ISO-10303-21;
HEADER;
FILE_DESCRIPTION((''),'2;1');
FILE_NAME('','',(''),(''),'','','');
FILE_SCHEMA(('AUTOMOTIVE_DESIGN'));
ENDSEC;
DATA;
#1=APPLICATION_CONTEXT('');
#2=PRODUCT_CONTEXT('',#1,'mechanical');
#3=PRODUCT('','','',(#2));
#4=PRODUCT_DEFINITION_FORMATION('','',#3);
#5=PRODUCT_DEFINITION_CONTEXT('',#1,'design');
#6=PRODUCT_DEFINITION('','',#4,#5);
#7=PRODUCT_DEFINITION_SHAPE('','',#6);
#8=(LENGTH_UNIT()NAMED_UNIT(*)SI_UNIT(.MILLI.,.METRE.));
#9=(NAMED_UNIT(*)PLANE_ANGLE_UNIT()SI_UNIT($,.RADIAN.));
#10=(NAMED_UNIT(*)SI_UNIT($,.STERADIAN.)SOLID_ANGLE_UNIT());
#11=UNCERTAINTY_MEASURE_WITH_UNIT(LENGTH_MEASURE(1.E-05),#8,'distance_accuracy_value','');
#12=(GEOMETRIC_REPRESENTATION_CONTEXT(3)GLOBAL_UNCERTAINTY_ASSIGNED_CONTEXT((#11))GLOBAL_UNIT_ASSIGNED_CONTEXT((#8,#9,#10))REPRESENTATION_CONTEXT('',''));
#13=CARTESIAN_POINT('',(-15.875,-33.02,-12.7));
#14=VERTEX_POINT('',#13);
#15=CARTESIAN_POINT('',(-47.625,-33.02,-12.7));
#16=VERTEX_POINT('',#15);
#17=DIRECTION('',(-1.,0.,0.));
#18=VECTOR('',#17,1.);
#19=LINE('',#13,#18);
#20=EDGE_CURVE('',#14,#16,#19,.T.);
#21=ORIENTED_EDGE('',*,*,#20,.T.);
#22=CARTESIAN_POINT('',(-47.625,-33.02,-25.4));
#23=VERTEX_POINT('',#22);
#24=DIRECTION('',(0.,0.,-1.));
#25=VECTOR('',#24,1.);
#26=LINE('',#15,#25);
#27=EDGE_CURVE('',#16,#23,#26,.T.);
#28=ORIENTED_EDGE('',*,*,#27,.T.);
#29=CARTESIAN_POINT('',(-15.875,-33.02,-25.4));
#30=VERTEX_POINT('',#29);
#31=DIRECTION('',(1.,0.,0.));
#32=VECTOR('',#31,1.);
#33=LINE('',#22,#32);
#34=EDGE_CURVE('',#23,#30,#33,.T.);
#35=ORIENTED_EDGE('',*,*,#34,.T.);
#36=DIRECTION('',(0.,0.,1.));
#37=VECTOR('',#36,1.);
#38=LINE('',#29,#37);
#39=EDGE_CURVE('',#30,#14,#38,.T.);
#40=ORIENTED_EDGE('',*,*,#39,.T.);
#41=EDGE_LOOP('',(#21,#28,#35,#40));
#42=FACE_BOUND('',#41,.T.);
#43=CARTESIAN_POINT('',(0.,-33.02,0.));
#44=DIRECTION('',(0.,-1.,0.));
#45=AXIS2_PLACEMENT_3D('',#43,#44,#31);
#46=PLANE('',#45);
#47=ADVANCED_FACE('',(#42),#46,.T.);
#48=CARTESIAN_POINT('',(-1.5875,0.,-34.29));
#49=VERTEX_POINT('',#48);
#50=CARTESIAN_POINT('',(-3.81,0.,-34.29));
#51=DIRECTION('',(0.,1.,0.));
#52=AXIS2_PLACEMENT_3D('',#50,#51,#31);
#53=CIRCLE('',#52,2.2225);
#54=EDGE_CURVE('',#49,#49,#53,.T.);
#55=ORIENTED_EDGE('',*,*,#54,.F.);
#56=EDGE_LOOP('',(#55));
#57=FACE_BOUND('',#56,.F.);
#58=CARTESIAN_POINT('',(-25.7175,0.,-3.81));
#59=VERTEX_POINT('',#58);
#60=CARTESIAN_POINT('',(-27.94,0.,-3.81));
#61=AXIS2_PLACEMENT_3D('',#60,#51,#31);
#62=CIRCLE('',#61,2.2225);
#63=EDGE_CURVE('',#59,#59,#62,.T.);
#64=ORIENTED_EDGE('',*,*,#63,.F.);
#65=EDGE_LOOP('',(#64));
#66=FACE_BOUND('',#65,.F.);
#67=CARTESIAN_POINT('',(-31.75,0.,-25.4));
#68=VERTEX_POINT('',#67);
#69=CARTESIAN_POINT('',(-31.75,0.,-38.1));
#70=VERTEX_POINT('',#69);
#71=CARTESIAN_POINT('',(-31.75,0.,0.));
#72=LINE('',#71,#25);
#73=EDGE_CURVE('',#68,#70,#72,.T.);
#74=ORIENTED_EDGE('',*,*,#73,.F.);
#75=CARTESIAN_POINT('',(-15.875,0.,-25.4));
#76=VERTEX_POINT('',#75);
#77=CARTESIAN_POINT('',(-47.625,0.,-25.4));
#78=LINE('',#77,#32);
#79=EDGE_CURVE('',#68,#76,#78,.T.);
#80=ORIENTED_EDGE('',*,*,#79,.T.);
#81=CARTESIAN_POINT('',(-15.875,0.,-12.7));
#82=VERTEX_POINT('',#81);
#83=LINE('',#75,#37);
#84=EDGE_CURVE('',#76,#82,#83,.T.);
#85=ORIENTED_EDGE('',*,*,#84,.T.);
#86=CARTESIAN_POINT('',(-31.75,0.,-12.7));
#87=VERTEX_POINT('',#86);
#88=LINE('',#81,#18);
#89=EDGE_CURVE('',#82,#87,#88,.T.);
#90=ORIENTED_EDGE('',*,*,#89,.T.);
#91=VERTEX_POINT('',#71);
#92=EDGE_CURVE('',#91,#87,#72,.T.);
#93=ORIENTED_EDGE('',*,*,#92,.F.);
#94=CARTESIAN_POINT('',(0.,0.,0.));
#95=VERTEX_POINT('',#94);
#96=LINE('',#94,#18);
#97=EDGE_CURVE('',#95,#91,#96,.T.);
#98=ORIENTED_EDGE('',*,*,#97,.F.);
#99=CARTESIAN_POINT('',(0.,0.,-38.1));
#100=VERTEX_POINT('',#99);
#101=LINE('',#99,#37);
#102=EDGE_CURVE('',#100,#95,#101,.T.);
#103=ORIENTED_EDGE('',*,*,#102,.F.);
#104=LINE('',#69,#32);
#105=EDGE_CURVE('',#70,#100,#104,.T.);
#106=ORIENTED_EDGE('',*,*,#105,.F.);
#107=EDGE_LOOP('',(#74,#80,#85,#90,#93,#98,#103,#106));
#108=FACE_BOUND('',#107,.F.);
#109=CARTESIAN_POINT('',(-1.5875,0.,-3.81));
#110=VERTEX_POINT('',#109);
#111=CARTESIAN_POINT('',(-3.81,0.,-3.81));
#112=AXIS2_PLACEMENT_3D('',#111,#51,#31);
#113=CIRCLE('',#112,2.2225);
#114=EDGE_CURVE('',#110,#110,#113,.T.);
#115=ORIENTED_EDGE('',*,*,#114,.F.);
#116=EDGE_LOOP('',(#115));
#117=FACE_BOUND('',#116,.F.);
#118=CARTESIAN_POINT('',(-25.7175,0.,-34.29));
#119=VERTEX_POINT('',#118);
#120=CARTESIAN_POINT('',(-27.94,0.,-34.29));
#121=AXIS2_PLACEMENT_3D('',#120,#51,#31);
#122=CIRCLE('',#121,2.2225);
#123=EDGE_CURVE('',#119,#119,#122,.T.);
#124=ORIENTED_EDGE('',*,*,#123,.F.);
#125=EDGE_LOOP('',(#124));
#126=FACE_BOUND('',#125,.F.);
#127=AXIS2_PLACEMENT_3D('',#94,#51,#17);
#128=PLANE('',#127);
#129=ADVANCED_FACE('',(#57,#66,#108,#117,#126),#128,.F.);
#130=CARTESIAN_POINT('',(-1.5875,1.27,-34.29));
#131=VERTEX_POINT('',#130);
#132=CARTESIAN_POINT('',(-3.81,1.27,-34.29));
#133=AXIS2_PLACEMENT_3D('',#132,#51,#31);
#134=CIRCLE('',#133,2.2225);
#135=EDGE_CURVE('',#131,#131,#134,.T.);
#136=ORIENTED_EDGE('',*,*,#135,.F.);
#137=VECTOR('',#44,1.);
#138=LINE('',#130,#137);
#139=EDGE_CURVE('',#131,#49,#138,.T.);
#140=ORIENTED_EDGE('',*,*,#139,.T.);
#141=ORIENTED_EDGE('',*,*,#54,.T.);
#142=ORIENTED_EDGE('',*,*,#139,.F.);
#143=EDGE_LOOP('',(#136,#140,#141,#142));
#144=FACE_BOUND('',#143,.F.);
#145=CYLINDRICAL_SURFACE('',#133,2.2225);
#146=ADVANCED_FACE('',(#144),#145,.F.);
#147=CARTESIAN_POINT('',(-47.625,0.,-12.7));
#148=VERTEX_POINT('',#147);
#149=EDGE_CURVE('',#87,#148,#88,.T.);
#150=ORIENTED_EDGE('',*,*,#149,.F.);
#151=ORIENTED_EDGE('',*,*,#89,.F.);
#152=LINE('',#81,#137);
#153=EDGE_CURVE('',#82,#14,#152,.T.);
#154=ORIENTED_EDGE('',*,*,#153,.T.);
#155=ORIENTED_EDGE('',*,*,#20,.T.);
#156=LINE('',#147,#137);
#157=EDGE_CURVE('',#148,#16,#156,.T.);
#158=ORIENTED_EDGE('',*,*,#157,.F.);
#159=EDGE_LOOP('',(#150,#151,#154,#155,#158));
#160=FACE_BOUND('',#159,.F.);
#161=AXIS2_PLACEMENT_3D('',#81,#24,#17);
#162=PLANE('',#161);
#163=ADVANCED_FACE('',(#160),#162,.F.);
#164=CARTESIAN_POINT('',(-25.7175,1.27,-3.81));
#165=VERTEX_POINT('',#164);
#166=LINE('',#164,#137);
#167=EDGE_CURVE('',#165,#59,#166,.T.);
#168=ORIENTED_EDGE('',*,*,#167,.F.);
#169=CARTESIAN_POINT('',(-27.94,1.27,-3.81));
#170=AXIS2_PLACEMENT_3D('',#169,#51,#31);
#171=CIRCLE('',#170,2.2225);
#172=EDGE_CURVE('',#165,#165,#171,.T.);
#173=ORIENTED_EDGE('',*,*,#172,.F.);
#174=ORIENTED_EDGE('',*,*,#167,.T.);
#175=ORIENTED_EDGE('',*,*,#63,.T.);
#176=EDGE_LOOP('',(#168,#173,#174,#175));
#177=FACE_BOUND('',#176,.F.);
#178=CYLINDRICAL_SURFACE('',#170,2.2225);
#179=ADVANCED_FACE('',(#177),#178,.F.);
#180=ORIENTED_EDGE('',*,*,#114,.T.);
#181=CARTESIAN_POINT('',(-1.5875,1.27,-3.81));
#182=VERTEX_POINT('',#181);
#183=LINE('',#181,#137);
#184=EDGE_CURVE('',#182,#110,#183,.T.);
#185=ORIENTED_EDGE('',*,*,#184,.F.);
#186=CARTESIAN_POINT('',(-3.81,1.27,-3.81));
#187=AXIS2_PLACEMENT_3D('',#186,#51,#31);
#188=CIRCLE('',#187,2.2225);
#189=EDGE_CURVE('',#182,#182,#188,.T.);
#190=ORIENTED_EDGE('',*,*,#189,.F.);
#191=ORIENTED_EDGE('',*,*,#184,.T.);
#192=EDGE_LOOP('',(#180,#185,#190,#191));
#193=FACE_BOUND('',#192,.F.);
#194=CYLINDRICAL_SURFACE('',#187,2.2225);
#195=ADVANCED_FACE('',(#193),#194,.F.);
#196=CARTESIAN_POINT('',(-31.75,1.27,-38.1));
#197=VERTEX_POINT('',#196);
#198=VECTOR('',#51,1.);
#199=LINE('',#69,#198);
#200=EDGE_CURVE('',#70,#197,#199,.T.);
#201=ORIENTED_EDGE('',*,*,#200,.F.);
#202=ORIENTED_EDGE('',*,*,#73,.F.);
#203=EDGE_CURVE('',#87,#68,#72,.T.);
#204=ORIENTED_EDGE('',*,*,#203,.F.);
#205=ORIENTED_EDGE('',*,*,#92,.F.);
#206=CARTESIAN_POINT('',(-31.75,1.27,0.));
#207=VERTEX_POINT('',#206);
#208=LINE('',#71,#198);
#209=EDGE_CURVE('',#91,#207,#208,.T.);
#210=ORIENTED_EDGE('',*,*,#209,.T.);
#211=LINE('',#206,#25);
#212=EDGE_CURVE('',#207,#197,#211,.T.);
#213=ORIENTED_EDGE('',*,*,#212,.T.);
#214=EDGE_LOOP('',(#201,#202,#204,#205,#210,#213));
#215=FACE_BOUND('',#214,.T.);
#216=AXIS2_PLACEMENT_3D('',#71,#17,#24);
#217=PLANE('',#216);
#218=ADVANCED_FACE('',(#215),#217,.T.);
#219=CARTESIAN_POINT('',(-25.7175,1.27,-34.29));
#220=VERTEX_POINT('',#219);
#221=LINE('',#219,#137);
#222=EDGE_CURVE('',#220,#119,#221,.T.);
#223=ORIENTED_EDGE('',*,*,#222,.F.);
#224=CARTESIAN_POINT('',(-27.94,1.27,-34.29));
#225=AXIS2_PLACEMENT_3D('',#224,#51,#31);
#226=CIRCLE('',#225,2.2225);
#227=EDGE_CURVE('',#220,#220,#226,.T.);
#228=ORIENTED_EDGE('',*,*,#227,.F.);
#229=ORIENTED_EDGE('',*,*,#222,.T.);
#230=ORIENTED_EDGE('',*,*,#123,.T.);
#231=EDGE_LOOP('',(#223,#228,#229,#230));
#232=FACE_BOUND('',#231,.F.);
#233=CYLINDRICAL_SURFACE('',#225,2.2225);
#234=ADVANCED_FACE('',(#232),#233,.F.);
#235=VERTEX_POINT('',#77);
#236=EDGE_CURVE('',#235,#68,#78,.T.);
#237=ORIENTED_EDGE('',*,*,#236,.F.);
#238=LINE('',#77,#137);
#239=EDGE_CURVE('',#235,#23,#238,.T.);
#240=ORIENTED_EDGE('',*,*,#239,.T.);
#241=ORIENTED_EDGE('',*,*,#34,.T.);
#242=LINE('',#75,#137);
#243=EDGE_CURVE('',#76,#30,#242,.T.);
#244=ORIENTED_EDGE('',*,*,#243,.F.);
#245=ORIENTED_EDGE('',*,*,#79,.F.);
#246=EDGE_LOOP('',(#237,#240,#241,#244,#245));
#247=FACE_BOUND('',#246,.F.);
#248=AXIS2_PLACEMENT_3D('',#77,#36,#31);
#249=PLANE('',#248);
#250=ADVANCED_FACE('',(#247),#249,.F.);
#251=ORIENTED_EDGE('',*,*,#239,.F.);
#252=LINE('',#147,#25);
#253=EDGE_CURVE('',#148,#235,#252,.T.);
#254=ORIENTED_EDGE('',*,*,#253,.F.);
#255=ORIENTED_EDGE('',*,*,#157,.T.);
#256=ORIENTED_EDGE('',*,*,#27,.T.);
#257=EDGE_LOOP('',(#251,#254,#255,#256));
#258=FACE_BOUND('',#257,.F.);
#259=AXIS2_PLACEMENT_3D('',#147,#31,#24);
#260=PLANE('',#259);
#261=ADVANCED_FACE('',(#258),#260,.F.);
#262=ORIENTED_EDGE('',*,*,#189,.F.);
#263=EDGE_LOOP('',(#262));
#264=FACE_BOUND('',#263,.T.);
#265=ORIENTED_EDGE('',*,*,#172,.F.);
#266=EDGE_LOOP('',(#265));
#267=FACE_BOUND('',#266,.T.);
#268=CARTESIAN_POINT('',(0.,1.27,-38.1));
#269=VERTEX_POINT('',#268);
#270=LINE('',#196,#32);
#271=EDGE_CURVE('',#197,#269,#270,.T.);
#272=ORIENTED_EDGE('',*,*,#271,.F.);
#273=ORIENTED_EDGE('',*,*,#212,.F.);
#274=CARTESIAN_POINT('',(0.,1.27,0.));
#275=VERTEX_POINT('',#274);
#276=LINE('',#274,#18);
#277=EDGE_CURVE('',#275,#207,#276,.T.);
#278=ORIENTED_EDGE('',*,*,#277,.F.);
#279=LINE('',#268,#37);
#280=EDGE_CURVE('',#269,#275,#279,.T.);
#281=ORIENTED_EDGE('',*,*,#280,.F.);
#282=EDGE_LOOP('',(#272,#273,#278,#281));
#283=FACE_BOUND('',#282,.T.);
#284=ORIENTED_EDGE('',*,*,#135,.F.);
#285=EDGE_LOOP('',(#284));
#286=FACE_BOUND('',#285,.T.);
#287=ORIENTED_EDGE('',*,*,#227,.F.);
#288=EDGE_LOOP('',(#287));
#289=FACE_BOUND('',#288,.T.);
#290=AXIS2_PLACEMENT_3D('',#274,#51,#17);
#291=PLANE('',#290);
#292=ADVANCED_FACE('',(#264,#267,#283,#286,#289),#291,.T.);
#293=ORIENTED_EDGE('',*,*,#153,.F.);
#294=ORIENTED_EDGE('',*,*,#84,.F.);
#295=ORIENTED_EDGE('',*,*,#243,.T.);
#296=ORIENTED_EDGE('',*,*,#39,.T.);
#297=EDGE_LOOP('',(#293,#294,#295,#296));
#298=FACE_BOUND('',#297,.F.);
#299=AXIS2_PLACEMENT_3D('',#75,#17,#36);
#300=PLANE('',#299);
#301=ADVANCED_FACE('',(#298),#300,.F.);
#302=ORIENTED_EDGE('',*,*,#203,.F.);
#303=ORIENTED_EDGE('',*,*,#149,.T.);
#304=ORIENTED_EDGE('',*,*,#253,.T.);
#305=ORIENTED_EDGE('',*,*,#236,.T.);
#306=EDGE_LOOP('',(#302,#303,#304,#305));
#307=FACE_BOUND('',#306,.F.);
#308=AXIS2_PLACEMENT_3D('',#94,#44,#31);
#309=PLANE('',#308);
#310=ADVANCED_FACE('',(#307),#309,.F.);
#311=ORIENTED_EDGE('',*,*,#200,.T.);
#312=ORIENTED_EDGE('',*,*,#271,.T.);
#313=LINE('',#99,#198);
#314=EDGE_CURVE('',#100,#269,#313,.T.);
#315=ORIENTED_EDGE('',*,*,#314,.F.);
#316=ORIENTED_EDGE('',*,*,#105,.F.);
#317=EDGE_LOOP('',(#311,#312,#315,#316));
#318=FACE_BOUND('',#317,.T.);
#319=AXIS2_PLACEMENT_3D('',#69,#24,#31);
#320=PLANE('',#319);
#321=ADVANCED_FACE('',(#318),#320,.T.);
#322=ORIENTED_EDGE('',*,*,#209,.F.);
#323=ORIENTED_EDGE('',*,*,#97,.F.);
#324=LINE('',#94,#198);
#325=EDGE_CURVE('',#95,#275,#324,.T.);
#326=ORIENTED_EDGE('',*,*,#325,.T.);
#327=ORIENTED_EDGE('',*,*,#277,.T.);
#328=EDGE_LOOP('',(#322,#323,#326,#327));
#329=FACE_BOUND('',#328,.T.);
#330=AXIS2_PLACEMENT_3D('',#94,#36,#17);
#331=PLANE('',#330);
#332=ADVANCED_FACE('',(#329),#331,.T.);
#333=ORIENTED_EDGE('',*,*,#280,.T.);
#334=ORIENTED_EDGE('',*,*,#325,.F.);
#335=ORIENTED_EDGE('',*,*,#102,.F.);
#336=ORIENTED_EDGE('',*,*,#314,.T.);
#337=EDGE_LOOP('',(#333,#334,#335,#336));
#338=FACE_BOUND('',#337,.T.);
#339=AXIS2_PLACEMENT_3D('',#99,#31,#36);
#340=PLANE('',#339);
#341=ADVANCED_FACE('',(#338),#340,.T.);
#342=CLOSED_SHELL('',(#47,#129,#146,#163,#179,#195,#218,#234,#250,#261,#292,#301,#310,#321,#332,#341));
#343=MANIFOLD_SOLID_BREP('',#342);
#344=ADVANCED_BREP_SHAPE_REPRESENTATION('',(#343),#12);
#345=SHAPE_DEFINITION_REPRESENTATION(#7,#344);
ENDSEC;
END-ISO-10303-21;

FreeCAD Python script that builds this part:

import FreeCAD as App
import Part
import Sketcher
Q = App.Units.Quantity

doc = App.newDocument("Part")
body = doc.addObject("PartDesign::Body", "Body")

# Sketch on XZ plane
sketch1 = body.newObject("Sketcher::SketchObject", "Sketch")
sketch1.AttachmentSupport = (doc.getObject("XZ_Plane"), [""])
sketch1.MapMode = "FlatFace"
sketch1.addGeometry([
    Part.LineSegment(App.Vector(-31.75, 0, 0), App.Vector(0, 0, 0)),
    Part.LineSegment(App.Vector(0, 0, 0), App.Vector(0, -38.1, 0)),
    Part.LineSegment(App.Vector(0, -38.1, 0), App.Vector(-31.75, -38.1, 0)),
    Part.LineSegment(App.Vector(-31.75, -38.1, 0), App.Vector(-31.75, 0, 0)),
], False)
sketch1.addConstraint([
    Sketcher.Constraint("Coincident", 0, 2, 1, 1),
    Sketcher.Constraint("Coincident", 1, 2, 2, 1),
    Sketcher.Constraint("Coincident", 2, 2, 3, 1),
    Sketcher.Constraint("Coincident", 3, 2, 0, 1),
    Sketcher.Constraint("Horizontal", 0),
    Sketcher.Constraint("Vertical", 1),
    Sketcher.Constraint("Horizontal", 2),
    Sketcher.Constraint("Vertical", 3),
    Sketcher.Constraint("Coincident", 0, 2, -1, 1),
    Sketcher.Constraint("DistanceY", 1, 2, 1, 1, Q("1.5 in")),
    Sketcher.Constraint("DistanceX", 0, 1, 0, 2, Q("1.25 in")),
])
pad1 = body.newObject("PartDesign::Pad", "Pad")
pad1.Profile = sketch1
pad1.Length = Q("0.05 in")
pad1.Reversed = True

# Sketch on XZ plane
sketch2 = body.newObject("Sketcher::SketchObject", "Sketch001")
sketch2.AttachmentSupport = (doc.getObject("XZ_Plane"), [""])
sketch2.MapMode = "FlatFace"
sketch2.AttachmentOffset = App.Placement(App.Vector(0, 0, -0.05 * 25.4), App.Rotation())
sketch2.addGeometry([
    Part.Circle(App.Vector(-27.94, -3.81, 0), App.Vector(0, 0, 1), 2.2225),
    Part.Circle(App.Vector(-27.94, -34.29, 0), App.Vector(0, 0, 1), 2.2225),
    Part.Circle(App.Vector(-3.81, -3.81, 0), App.Vector(0, 0, 1), 2.2225),
    Part.Circle(App.Vector(-3.81, -34.29, 0), App.Vector(0, 0, 1), 2.2225),
], False)
sketch2.addConstraint([
    Sketcher.Constraint("Equal", 0, 1),
    Sketcher.Constraint("Equal", 1, 2),
    Sketcher.Constraint("Equal", 2, 3),
    Sketcher.Constraint("Horizontal", 0, 3, 2, 3),
    Sketcher.Constraint("Horizontal", 1, 3, 3, 3),
    Sketcher.Constraint("Vertical", 0, 3, 1, 3),
    Sketcher.Constraint("Vertical", 2, 3, 3, 3),
    Sketcher.Constraint("Diameter", 0, Q("0.175 in")),
    Sketcher.Constraint("DistanceY", 0, 3, -1, 1, Q("0.15 in")),
    Sketcher.Constraint("DistanceX", 2, 3, -1, 1, Q("0.15 in")),
    Sketcher.Constraint("DistanceX", 0, 3, -1, 1, Q("1.1 in")),
    Sketcher.Constraint("DistanceY", 1, 3, 0, 3, Q("1.2 in")),
])
pocket1 = body.newObject("PartDesign::Pocket", "Pocket")
pocket1.Profile = sketch2
pocket1.Length = Q("0.05 in")
pocket1.Reversed = True

# Sketch on XZ plane
sketch3 = body.newObject("Sketcher::SketchObject", "Sketch002")
sketch3.AttachmentSupport = (doc.getObject("XZ_Plane"), [""])
sketch3.MapMode = "FlatFace"
sketch3.addGeometry([
    Part.LineSegment(App.Vector(-47.625, -25.4, 0), App.Vector(-15.875, -25.4, 0)),
    Part.LineSegment(App.Vector(-15.875, -25.4, 0), App.Vector(-15.875, -12.7, 0)),
    Part.LineSegment(App.Vector(-15.875, -12.7, 0), App.Vector(-47.625, -12.7, 0)),
    Part.LineSegment(App.Vector(-47.625, -12.7, 0), App.Vector(-47.625, -25.4, 0)),
], False)
sketch3.addConstraint([
    Sketcher.Constraint("Coincident", 0, 2, 1, 1),
    Sketcher.Constraint("Coincident", 1, 2, 2, 1),
    Sketcher.Constraint("Coincident", 2, 2, 3, 1),
    Sketcher.Constraint("Coincident", 3, 2, 0, 1),
    Sketcher.Constraint("Horizontal", 0),
    Sketcher.Constraint("Vertical", 1),
    Sketcher.Constraint("Horizontal", 2),
    Sketcher.Constraint("Vertical", 3),
    Sketcher.Constraint("DistanceY", 1, 1, 1, 2, Q("0.5 in")),
    Sketcher.Constraint("DistanceX", 0, 1, 0, 2, Q("1.25 in")),
    Sketcher.Constraint("DistanceY", 1, 2, -1, 1, Q("0.5 in")),
    Sketcher.Constraint("DistanceX", 0, 2, -1, 1, Q("0.625 in")),
])
pad2 = body.newObject("PartDesign::Pad", "Pad001")
pad2.Profile = sketch3
pad2.Length = Q("1.3 in")

doc.recompute()
